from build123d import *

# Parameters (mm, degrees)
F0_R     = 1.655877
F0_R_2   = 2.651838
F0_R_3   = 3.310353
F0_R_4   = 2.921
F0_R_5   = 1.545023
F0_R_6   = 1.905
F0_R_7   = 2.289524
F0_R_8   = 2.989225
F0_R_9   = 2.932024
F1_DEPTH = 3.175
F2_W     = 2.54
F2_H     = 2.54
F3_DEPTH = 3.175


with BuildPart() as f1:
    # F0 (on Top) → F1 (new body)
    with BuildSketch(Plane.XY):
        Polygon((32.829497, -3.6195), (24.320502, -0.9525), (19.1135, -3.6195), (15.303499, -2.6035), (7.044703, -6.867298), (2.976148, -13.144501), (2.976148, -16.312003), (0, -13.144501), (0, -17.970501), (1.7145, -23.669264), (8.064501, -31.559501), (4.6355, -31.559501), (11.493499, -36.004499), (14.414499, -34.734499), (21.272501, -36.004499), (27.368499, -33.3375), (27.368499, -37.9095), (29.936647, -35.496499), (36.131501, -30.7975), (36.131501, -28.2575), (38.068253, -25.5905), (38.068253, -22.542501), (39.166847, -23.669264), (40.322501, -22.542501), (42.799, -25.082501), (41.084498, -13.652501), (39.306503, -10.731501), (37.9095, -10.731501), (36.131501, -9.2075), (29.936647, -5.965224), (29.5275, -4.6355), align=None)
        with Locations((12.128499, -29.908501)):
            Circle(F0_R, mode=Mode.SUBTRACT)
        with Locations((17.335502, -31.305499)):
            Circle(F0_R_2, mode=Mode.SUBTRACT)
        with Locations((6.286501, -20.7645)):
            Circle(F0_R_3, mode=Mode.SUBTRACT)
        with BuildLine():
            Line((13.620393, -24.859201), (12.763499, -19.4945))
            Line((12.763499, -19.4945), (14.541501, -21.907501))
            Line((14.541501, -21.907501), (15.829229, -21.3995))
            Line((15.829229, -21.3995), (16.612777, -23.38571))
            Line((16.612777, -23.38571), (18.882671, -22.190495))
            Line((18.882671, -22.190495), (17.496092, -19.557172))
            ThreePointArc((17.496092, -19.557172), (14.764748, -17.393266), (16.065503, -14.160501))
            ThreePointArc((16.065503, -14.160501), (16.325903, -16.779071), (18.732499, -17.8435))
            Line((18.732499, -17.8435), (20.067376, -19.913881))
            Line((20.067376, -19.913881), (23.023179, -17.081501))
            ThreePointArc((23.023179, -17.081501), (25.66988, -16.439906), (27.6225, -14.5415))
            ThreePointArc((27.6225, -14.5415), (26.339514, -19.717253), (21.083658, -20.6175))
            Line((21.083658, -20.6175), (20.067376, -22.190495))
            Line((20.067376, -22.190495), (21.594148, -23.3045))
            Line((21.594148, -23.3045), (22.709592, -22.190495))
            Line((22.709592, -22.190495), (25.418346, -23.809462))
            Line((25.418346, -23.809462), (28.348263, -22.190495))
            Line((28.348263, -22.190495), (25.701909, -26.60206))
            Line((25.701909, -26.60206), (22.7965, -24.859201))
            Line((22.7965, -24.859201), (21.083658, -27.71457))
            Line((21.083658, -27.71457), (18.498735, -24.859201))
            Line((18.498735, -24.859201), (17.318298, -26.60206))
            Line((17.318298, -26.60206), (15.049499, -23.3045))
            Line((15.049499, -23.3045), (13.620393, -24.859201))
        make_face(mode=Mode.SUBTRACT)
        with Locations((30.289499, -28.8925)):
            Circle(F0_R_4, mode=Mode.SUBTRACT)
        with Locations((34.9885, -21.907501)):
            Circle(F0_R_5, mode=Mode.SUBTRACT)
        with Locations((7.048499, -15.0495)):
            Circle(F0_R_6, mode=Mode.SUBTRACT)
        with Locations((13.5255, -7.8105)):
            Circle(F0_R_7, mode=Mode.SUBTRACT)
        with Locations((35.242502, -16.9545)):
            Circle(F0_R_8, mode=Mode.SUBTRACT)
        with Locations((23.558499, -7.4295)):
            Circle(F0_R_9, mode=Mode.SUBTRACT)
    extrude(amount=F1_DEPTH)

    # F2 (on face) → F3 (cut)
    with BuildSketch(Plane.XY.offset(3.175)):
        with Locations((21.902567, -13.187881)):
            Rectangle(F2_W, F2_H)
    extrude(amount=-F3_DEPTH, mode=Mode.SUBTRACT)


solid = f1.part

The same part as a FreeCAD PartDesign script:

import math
import FreeCAD as App
import Part
import Sketcher

V = App.Vector
Q = App.Units.Quantity

doc = App.newDocument("Part")
body = doc.addObject("PartDesign::Body", "Body")

sketch1 = body.newObject("Sketcher::SketchObject", "Sketch")
sketch1.AttachmentSupport = (doc.getObject("XY_Plane"), [""])
sketch1.MapMode = "FlatFace"
sketch1.addGeometry([
    Part.LineSegment(V(32.8, -3.6, 0), V(24.3, -1, 0)),
    Part.LineSegment(V(24.3, -1, 0), V(19.1, -3.6, 0)),
    Part.LineSegment(V(19.1, -3.6, 0), V(15.3, -2.6, 0)),
    Part.LineSegment(V(15.3, -2.6, 0), V(7, -6.9, 0)),
    Part.LineSegment(V(7, -6.9, 0), V(3, -13.1, 0)),
    Part.LineSegment(V(3, -13.1, 0), V(3, -16.3, 0)),
    Part.LineSegment(V(3, -16.3, 0), V(0, -13.1, 0)),
    Part.LineSegment(V(0, -13.1, 0), V(0, -18, 0)),
    Part.LineSegment(V(0, -18, 0), V(1.7, -23.7, 0)),
    Part.LineSegment(V(1.7, -23.7, 0), V(8.1, -31.6, 0)),
    Part.LineSegment(V(8.1, -31.6, 0), V(4.6, -31.6, 0)),
    Part.LineSegment(V(4.6, -31.6, 0), V(11.5, -36, 0)),
    Part.LineSegment(V(11.5, -36, 0), V(14.4, -34.7, 0)),
    Part.LineSegment(V(14.4, -34.7, 0), V(21.3, -36, 0)),
    Part.LineSegment(V(21.3, -36, 0), V(27.4, -33.3, 0)),
    Part.LineSegment(V(27.4, -33.3, 0), V(27.4, -37.9, 0)),
    Part.LineSegment(V(27.4, -37.9, 0), V(29.9, -35.5, 0)),
    Part.LineSegment(V(29.9, -35.5, 0), V(36.1, -30.8, 0)),
    Part.LineSegment(V(36.1, -30.8, 0), V(36.1, -28.3, 0)),
    Part.LineSegment(V(36.1, -28.3, 0), V(38.1, -25.6, 0)),
    Part.LineSegment(V(38.1, -25.6, 0), V(38.1, -22.5, 0)),
    Part.LineSegment(V(38.1, -22.5, 0), V(39.2, -23.7, 0)),
    Part.LineSegment(V(39.2, -23.7, 0), V(40.3, -22.5, 0)),
    Part.LineSegment(V(40.3, -22.5, 0), V(42.8, -25.1, 0)),
    Part.LineSegment(V(42.8, -25.1, 0), V(41.1, -13.7, 0)),
    Part.LineSegment(V(41.1, -13.7, 0), V(39.3, -10.7, 0)),
    Part.LineSegment(V(39.3, -10.7, 0), V(37.9, -10.7, 0)),
    Part.LineSegment(V(37.9, -10.7, 0), V(36.1, -9.2, 0)),
    Part.LineSegment(V(36.1, -9.2, 0), V(29.9, -6, 0)),
    Part.LineSegment(V(29.9, -6, 0), V(29.5, -4.6, 0)),
    Part.LineSegment(V(29.5, -4.6, 0), V(32.8, -3.6, 0)),
    Part.Circle(V(17.3, -31.3, 0), V(0, 0, 1), 2.7),
    Part.Circle(V(12.1, -29.9, 0), V(0, 0, 1), 1.7),
    Part.Circle(V(6.3, -20.8, 0), V(0, 0, 1), 3.3),
    Part.LineSegment(V(15, -23.3, 0), V(13.6, -24.9, 0)),
    Part.LineSegment(V(13.6, -24.9, 0), V(12.8, -19.5, 0)),
    Part.LineSegment(V(12.8, -19.5, 0), V(14.5, -21.9, 0)),
    Part.LineSegment(V(14.5, -21.9, 0), V(15.8, -21.4, 0)),
    Part.LineSegment(V(15.8, -21.4, 0), V(16.6, -23.4, 0)),
    Part.LineSegment(V(16.6, -23.4, 0), V(18.9, -22.2, 0)),
    Part.LineSegment(V(18.9, -22.2, 0), V(17.5, -19.6, 0)),
    Part.ArcOfCircle(Part.Circle(V(17.6, -16.6, 0), V(0, 0, 1), 2.9), math.radians(121), math.radians(268)),
    Part.ArcOfCircle(Part.Circle(V(18.4, -15.2, 0), V(0, 0, 1), 2.6), math.radians(155), math.radians(276)),
    Part.LineSegment(V(18.7, -17.8, 0), V(20.1, -19.9, 0)),
    Part.LineSegment(V(20.1, -19.9, 0), V(23, -17.1, 0)),
    Part.ArcOfCircle(Part.Circle(V(23.2, -11.9, 0), V(0, 0, 1), 5.2), math.radians(-92), math.radians(-31)),
    Part.ArcOfCircle(Part.Circle(V(23, -16.1, 0), V(0, 0, 1), 4.9), math.radians(-113), math.radians(19)),
    Part.LineSegment(V(21.1, -20.6, 0), V(20.1, -22.2, 0)),
    Part.LineSegment(V(20.1, -22.2, 0), V(21.6, -23.3, 0)),
    Part.LineSegment(V(21.6, -23.3, 0), V(22.7, -22.2, 0)),
    Part.LineSegment(V(22.7, -22.2, 0), V(25.4, -23.8, 0)),
    Part.LineSegment(V(25.4, -23.8, 0), V(28.3, -22.2, 0)),
    Part.LineSegment(V(28.3, -22.2, 0), V(25.7, -26.6, 0)),
    Part.LineSegment(V(25.7, -26.6, 0), V(22.8, -24.9, 0)),
    Part.LineSegment(V(22.8, -24.9, 0), V(21.1, -27.7, 0)),
    Part.LineSegment(V(21.1, -27.7, 0), V(18.5, -24.9, 0)),
    Part.LineSegment(V(18.5, -24.9, 0), V(17.3, -26.6, 0)),
    Part.LineSegment(V(17.3, -26.6, 0), V(15, -23.3, 0)),
    Part.Circle(V(30.3, -28.9, 0), V(0, 0, 1), 2.9),
    Part.Circle(V(35, -21.9, 0), V(0, 0, 1), 1.5),
    Part.Circle(V(7, -15, 0), V(0, 0, 1), 1.9),
    Part.Circle(V(13.5, -7.8, 0), V(0, 0, 1), 2.3),
    Part.Circle(V(35.2, -17, 0), V(0, 0, 1), 3),
    Part.Circle(V(23.6, -7.4, 0), V(0, 0, 1), 2.9),
], False)
sketch1.addConstraint([
    Sketcher.Constraint("Coincident", 0, 2, 1, 1),
    Sketcher.Constraint("Coincident", 1, 2, 2, 1),
    Sketcher.Constraint("Coincident", 2, 2, 3, 1),
    Sketcher.Constraint("Coincident", 3, 2, 4, 1),
    Sketcher.Constraint("Coincident", 4, 2, 5, 1),
    Sketcher.Constraint("Coincident", 5, 2, 6, 1),
    Sketcher.Constraint("Coincident", 6, 2, 7, 1),
    Sketcher.Constraint("Coincident", 7, 2, 8, 1),
    Sketcher.Constraint("Coincident", 8, 2, 9, 1),
    Sketcher.Constraint("Coincident", 9, 2, 10, 1),
    Sketcher.Constraint("Coincident", 10, 2, 11, 1),
    Sketcher.Constraint("Coincident", 11, 2, 12, 1),
    Sketcher.Constraint("Coincident", 12, 2, 13, 1),
    Sketcher.Constraint("Coincident", 13, 2, 14, 1),
    Sketcher.Constraint("Coincident", 14, 2, 15, 1),
    Sketcher.Constraint("Coincident", 15, 2, 16, 1),
    Sketcher.Constraint("Coincident", 16, 2, 17, 1),
    Sketcher.Constraint("Coincident", 17, 2, 18, 1),
    Sketcher.Constraint("Coincident", 18, 2, 19, 1),
    Sketcher.Constraint("Coincident", 19, 2, 20, 1),
    Sketcher.Constraint("Coincident", 20, 2, 21, 1),
    Sketcher.Constraint("Coincident", 21, 2, 22, 1),
    Sketcher.Constraint("Coincident", 22, 2, 23, 1),
    Sketcher.Constraint("Coincident", 23, 2, 24, 1),
    Sketcher.Constraint("Coincident", 24, 2, 25, 1),
    Sketcher.Constraint("Coincident", 25, 2, 26, 1),
    Sketcher.Constraint("Coincident", 26, 2, 27, 1),
    Sketcher.Constraint("Coincident", 27, 2, 28, 1),
    Sketcher.Constraint("Coincident", 28, 2, 29, 1),
    Sketcher.Constraint("Coincident", 29, 2, 30, 1),
    Sketcher.Constraint("Coincident", 30, 2, 0, 1),
    Sketcher.Constraint("Coincident", 34, 2, 35, 1),
    Sketcher.Constraint("Coincident", 35, 2, 36, 1),
    Sketcher.Constraint("Coincident", 36, 2, 37, 1),
    Sketcher.Constraint("Coincident", 37, 2, 38, 1),
    Sketcher.Constraint("Coincident", 38, 2, 39, 1),
    Sketcher.Constraint("Coincident", 39, 2, 40, 1),
    Sketcher.Constraint("Coincident", 40, 2, 41, 2),
    Sketcher.Constraint("Coincident", 41, 1, 42, 1),
    Sketcher.Constraint("Coincident", 42, 2, 43, 1),
    Sketcher.Constraint("Coincident", 43, 2, 44, 1),
    Sketcher.Constraint("Coincident", 44, 2, 45, 1),
    Sketcher.Constraint("Coincident", 45, 2, 46, 2),
    Sketcher.Constraint("Coincident", 46, 1, 47, 1),
    Sketcher.Constraint("Coincident", 47, 2, 48, 1),
    Sketcher.Constraint("Coincident", 48, 2, 49, 1),
    Sketcher.Constraint("Coincident", 49, 2, 50, 1),
    Sketcher.Constraint("Coincident", 50, 2, 51, 1),
    Sketcher.Constraint("Coincident", 51, 2, 52, 1),
    Sketcher.Constraint("Coincident", 52, 2, 53, 1),
    Sketcher.Constraint("Coincident", 53, 2, 54, 1),
    Sketcher.Constraint("Coincident", 54, 2, 55, 1),
    Sketcher.Constraint("Coincident", 55, 2, 56, 1),
    Sketcher.Constraint("Coincident", 56, 2, 57, 1),
    Sketcher.Constraint("Coincident", 57, 2, 34, 1),
    Sketcher.Constraint("Vertical", 5),
    Sketcher.Constraint("Vertical", 7),
    Sketcher.Constraint("Horizontal", 10),
    Sketcher.Constraint("Vertical", 15),
    Sketcher.Constraint("Vertical", 18),
    Sketcher.Constraint("Vertical", 20),
    Sketcher.Constraint("Horizontal", 26),
    Sketcher.Constraint("PointOnObject", 6, 2, -2),
    Sketcher.Constraint("Perpendicular", 4, 11),
    Sketcher.Constraint("Perpendicular", 6, 16),
    Sketcher.Constraint("Perpendicular", 21, 22),
    Sketcher.Constraint("Perpendicular", 22, 23),
    Sketcher.Constraint("Perpendicular", 29, 30),
    Sketcher.Constraint("Perpendicular", 37, 38),
    Sketcher.Constraint("Perpendicular", 39, 40),
    Sketcher.Constraint("Perpendicular", 52, 53),
    Sketcher.Constraint("Perpendicular", 53, 54),
    Sketcher.Constraint("Horizontal", 4, 2, 6, 2),
    Sketcher.Constraint("Horizontal", 11, 2, 13, 2),
    Sketcher.Constraint("Horizontal", 8, 2, 21, 2),
    Sketcher.Constraint("Horizontal", 20, 2, 22, 2),
    Sketcher.Constraint("Horizontal", 1, 2, 30, 2),
    Sketcher.Constraint("Horizontal", 59, 3, 36, 2),
    Sketcher.Constraint("Horizontal", 39, 2, 47, 2),
    Sketcher.Constraint("Horizontal", 47, 2, 49, 2),
    Sketcher.Constraint("Horizontal", 49, 2, 51, 2),
    Sketcher.Constraint("Horizontal", 34, 2, 53, 2),
    Sketcher.Constraint("Horizontal", 53, 2, 55, 2),
    Sketcher.Constraint("Horizontal", 52, 2, 56, 2),
    Sketcher.Constraint("Horizontal", 48, 2, 57, 2),
    Sketcher.Constraint("Vertical", 18, 2, 27, 2),
    Sketcher.Constraint("Vertical", 16, 2, 28, 2),
    Sketcher.Constraint("Vertical", 46, 3, 44, 2),
    Sketcher.Constraint("Vertical", 43, 2, 47, 2),
    Sketcher.Constraint("Vertical", 46, 1, 54, 2),
    Sketcher.Constraint("Diameter", 58, Q("0.23 in")),
    Sketcher.Constraint("Diameter", 60, Q("0.15 in")),
    Sketcher.Constraint("DistanceY", 18, 1, 18, 2, Q("0.1 in")),
    Sketcher.Constraint("DistanceY", 7, 2, 7, 1, Q("0.19 in")),
    Sketcher.Constraint("DistanceY", 15, 2, 15, 1, Q("0.18 in")),
    Sketcher.Constraint("DistanceY", 20, 1, 20, 2, Q("0.12 in")),
    Sketcher.Constraint("DistanceX", 10, 2, 10, 1, Q("0.135 in")),
    Sketcher.Constraint("DistanceX", 26, 2, 26, 1, Q("0.0550001 in")),
    Sketcher.Constraint("Diameter", 61, 4.579048),
    Sketcher.Constraint("Diameter", 62, 5.97845),
    Sketcher.Constraint("Diameter", 63, 5.864048),
    Sketcher.Constraint("DistanceY", 14, 2, -1, 1, Q("1.3125 in")),
    Sketcher.Constraint("DistanceX", -1, 1, 23, 2, Q("1.685 in")),
    Sketcher.Constraint("Radius", 45, 5.165781),
    Sketcher.Constraint("Diameter", 31, 5.303676),
    Sketcher.Constraint("Diameter", 32, 3.311754),
    Sketcher.Constraint("Diameter", 33, 6.620706),
    Sketcher.Constraint("Diameter", 59, 3.090046),
    Sketcher.Constraint("DistanceX", -1, 1, 31, 3, Q("0.6825001 in")),
    Sketcher.Constraint("DistanceY", 31, 3, -1, 1, Q("1.2325 in")),
    Sketcher.Constraint("DistanceX", -1, 1, 32, 3, Q("0.4775 in")),
    Sketcher.Constraint("DistanceY", 32, 3, -1, 1, Q("1.1775 in")),
    Sketcher.Constraint("DistanceX", -1, 1, 33, 3, Q("0.2475 in")),
    Sketcher.Constraint("DistanceY", 33, 3, -1, 1, Q("0.8175 in")),
    Sketcher.Constraint("DistanceX", -1, 1, 58, 3, Q("1.1925 in")),
    Sketcher.Constraint("DistanceY", 58, 3, -1, 1, Q("1.1375 in")),
    Sketcher.Constraint("DistanceX", -1, 1, 59, 3, Q("1.3775 in")),
    Sketcher.Constraint("DistanceY", 59, 3, -1, 1, Q("0.8625 in")),
    Sketcher.Constraint("DistanceX", -1, 1, 60, 3, Q("0.2775 in")),
    Sketcher.Constraint("DistanceY", 60, 3, -1, 1, Q("0.5925 in")),
    Sketcher.Constraint("DistanceX", -1, 1, 61, 3, Q("0.5325 in")),
    Sketcher.Constraint("DistanceY", 61, 3, -1, 1, Q("0.3075 in")),
    Sketcher.Constraint("DistanceX", -1, 1, 62, 3, Q("1.3875001 in")),
    Sketcher.Constraint("DistanceY", 62, 3, -1, 1, Q("0.6675 in")),
    Sketcher.Constraint("DistanceX", -1, 1, 63, 3, Q("0.9275 in")),
    Sketcher.Constraint("DistanceY", 63, 3, -1, 1, Q("0.2925 in")),
    Sketcher.Constraint("DistanceX", -1, 1, 0, 2, Q("0.9575001 in")),
    Sketcher.Constraint("DistanceY", 0, 2, -1, 1, Q("0.0375 in")),
    Sketcher.Constraint("DistanceX", -1, 1, 1, 2, Q("0.7525 in")),
    Sketcher.Constraint("DistanceY", 1, 2, -1, 1, Q("0.1425 in")),
    Sketcher.Constraint("DistanceX", -1, 1, 2, 2, Q("0.6025 in")),
    Sketcher.Constraint("DistanceY", 2, 2, -1, 1, Q("0.1025 in")),
    Sketcher.Constraint("DistanceY", 4, 2, -1, 1, Q("0.5175 in")),
    Sketcher.Constraint("DistanceX", -1, 1, 8, 2, Q("0.0675 in")),
    Sketcher.Constraint("DistanceX", -1, 1, 9, 2, Q("0.3175 in")),
    Sketcher.Constraint("DistanceY", 9, 2, -1, 1, Q("1.2425 in")),
    Sketcher.Constraint("DistanceX", -1, 1, 11, 2, Q("0.4525 in")),
    Sketcher.Constraint("DistanceY", 11, 2, -1, 1, Q("1.4175 in")),
    Sketcher.Constraint("DistanceX", -1, 1, 12, 2, Q("0.5675 in")),
    Sketcher.Constraint("DistanceY", 12, 2, -1, 1, Q("1.3675 in")),
    Sketcher.Constraint("DistanceX", -1, 1, 13, 2, Q("0.8375 in")),
    Sketcher.Constraint("DistanceX", -1, 1, 14, 2, Q("1.0775 in")),
    Sketcher.Constraint("DistanceY", 16, 2, -1, 1, Q("1.3975 in")),
    Sketcher.Constraint("DistanceX", -1, 1, 17, 2, Q("1.4225 in")),
    Sketcher.Constraint("DistanceY", 17, 2, -1, 1, Q("1.2125 in")),
    Sketcher.Constraint("DistanceY", 19, 2, -1, 1, Q("1.0075 in")),
    Sketcher.Constraint("DistanceX", -1, 1, 22, 2, Q("1.5875 in")),
    Sketcher.Constraint("DistanceY", 23, 2, -1, 1, Q("0.9875 in")),
    Sketcher.Constraint("DistanceX", -1, 1, 24, 2, Q("1.6174999 in")),
    Sketcher.Constraint("DistanceY", 24, 2, -1, 1, Q("0.5375 in")),
    Sketcher.Constraint("DistanceX", -1, 1, 25, 2, Q("1.5475001 in")),
    Sketcher.Constraint("DistanceY", 25, 2, -1, 1, Q("0.4225 in")),
    Sketcher.Constraint("DistanceY", 27, 2, -1, 1, Q("0.3625 in")),
    Sketcher.Constraint("DistanceX", -1, 1, 29, 2, Q("1.1625 in")),
    Sketcher.Constraint("DistanceY", 29, 2, -1, 1, Q("0.1825 in")),
    Sketcher.Constraint("DistanceX", -1, 1, 30, 2, Q("1.2924999 in")),
    Sketcher.Constraint("DistanceX", -1, 1, 35, 2, Q("0.5025 in")),
    Sketcher.Constraint("DistanceY", 35, 2, -1, 1, Q("0.7675 in")),
    Sketcher.Constraint("DistanceX", -1, 1, 36, 2, Q("0.5725 in")),
    Sketcher.Constraint("DistanceY", 37, 2, -1, 1, Q("0.8425 in")),
    Sketcher.Constraint("DistanceX", -1, 1, 41, 1, Q("0.6325001 in")),
    Sketcher.Constraint("DistanceY", 41, 1, -1, 1, Q("0.5575 in")),
    Sketcher.Constraint("DistanceX", -1, 1, 42, 2, Q("0.7375 in")),
    Sketcher.Constraint("DistanceY", 42, 2, -1, 1, Q("0.7025 in")),
    Sketcher.Constraint("DistanceY", 44, 2, -1, 1, Q("0.6725 in")),
    Sketcher.Constraint("DistanceX", -1, 1, 45, 2, Q("1.0875 in")),
    Sketcher.Constraint("DistanceY", 45, 2, -1, 1, Q("0.5725 in")),
    Sketcher.Constraint("DistanceY", 48, 2, -1, 1, Q("0.9175 in")),
    Sketcher.Constraint("DistanceX", -1, 1, 53, 2, Q("0.8975 in")),
    Sketcher.Constraint("DistanceX", -1, 1, 57, 2, Q("0.5925 in")),
    Sketcher.Constraint("Radius", 41, 2.910973),
    Sketcher.Constraint("Radius", 42, 2.613284),
    Sketcher.Constraint("Radius", 46, 4.871913),
    Sketcher.Constraint("DistanceY", 34, 2, -1, 1, 24.859201),
    Sketcher.Constraint("DistanceY", 46, 1, -1, 1, 20.6175),
    Sketcher.Constraint("Distance", 21, 1.573691),
    Sketcher.Constraint("Distance", 34, 2.111738),
    Sketcher.Constraint("Distance", 40, 2.97607),
    Sketcher.Constraint("Distance", 49, 1.576459),
    Sketcher.Constraint("Distance", 53, 3.388061),
    Sketcher.Constraint("Distance", 54, 3.329709),
    Sketcher.Constraint("Distance", 56, 2.104991),
    Sketcher.Constraint("DistanceY", 5, 2, 5, 1, 3.167502),
    Sketcher.Constraint("DistanceX", -1, 1, 46, 3, 23.023179),
    Sketcher.Constraint("DistanceX", -1, 1, 37, 2, 15.829229),
    Sketcher.Constraint("DistanceY", 38, 2, -1, 1, 23.38571),
    Sketcher.Constraint("DistanceX", -1, 1, 39, 2, 18.882671),
    Sketcher.Constraint("DistanceY", 43, 2, -1, 1, 19.913881),
    Sketcher.Constraint("DistanceX", -1, 1, 48, 2, 21.594148),
    Sketcher.Constraint("DistanceY", 50, 2, -1, 1, 23.809462),
    Sketcher.Constraint("Distance", 3, 9.294498),
    Sketcher.Constraint("Distance", 4, 7.480402),
    Sketcher.Constraint("Distance", 39, 2.565338),
    Sketcher.Constraint("Distance", 43, 2.463407),
    Sketcher.Constraint("Distance", 50, 3.155694),
    Sketcher.Constraint("Distance", 55, 3.851618),
])
pad1 = body.newObject("PartDesign::Pad", "Pad")
pad1.Profile = sketch1
pad1.Length = Q("0.125 in")

sketch2 = body.newObject("Sketcher::SketchObject", "Sketch001")
sketch2.AttachmentSupport = (doc.getObject("XY_Plane"), [""])
sketch2.MapMode = "FlatFace"
sketch2.AttachmentOffset = App.Placement(V(0, 0, 0.125 * 25.4), App.Rotation())
sketch2.addGeometry([
    Part.LineSegment(V(20.6, -11.9, 0), V(20.6, -14.5, 0)),
    Part.LineSegment(V(20.6, -14.5, 0), V(23.2, -14.5, 0)),
    Part.LineSegment(V(23.2, -14.5, 0), V(23.2, -11.9, 0)),
    Part.LineSegment(V(23.2, -11.9, 0), V(20.6, -11.9, 0)),
], False)
sketch2.addConstraint([
    Sketcher.Constraint("Coincident", 0, 2, 1, 1),
    Sketcher.Constraint("Coincident", 1, 2, 2, 1),
    Sketcher.Constraint("Coincident", 2, 2, 3, 1),
    Sketcher.Constraint("Coincident", 3, 2, 0, 1),
    Sketcher.Constraint("Vertical", 0),
    Sketcher.Constraint("Horizontal", 1),
    Sketcher.Constraint("Vertical", 2),
    Sketcher.Constraint("Horizontal", 3),
    Sketcher.Constraint("Equal", 3, 0),
    Sketcher.Constraint("DistanceX", 1, 1, 1, 2, Q("0.1 in")),
    Sketcher.Constraint("DistanceY", 0, 2, -1, 1, 14.457881),
    Sketcher.Constraint("DistanceX", -1, 1, 0, 2, 20.632567),
])
pocket1 = body.newObject("PartDesign::Pocket", "Pocket")
pocket1.Profile = sketch2
pocket1.Length = Q("0.125 in")

doc.recompute()
